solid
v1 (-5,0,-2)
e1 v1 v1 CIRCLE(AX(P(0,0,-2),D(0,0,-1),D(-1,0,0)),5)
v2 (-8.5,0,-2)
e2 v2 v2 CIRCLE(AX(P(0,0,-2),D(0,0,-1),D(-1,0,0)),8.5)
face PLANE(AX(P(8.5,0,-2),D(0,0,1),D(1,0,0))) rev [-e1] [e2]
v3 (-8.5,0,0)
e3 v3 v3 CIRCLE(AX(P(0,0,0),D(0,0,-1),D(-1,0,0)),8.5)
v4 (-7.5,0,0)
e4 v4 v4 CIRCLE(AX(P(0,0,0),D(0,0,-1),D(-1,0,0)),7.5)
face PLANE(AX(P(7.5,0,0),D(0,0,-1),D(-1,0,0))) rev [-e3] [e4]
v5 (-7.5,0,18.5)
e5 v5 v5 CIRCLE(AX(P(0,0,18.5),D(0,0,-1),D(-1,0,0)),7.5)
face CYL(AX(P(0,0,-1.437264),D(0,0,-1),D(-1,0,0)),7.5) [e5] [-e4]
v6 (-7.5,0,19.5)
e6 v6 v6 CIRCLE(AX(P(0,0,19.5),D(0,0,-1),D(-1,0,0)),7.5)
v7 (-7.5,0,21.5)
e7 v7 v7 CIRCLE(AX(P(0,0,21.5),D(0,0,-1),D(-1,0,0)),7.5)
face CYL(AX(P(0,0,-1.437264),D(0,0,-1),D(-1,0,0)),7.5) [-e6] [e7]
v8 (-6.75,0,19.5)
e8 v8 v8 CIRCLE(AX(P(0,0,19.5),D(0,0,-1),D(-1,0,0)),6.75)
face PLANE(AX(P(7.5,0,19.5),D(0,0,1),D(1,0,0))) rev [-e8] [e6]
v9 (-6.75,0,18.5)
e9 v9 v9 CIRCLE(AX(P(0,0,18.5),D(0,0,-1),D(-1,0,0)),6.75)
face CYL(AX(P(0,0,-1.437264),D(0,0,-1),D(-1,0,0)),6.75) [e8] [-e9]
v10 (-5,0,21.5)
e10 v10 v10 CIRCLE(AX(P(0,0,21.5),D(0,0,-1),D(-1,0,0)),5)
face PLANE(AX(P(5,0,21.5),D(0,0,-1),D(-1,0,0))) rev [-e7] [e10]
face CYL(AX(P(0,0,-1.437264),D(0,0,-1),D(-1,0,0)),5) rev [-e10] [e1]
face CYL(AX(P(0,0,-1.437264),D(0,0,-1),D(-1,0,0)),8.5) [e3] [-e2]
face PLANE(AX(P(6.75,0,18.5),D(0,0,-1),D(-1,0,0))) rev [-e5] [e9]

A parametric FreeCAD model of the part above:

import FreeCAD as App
import Part
import Sketcher


def add_polygon(sketch, points):
    """Adds a closed chain of lines whose ends are joined by coincident constraints."""
    first, n = sketch.GeometryCount, len(points)
    for a, b in zip(points, points[1:] + points[:1]):
        sketch.addGeometry(Part.LineSegment(App.Vector(*a, 0), App.Vector(*b, 0)), False)
    for i in range(n):
        sketch.addConstraint(Sketcher.Constraint("Coincident", first + i, 2, first + (i + 1) % n, 1))

doc = App.newDocument("Part")
body = doc.addObject("PartDesign::Body", "Body")

sketch1 = body.newObject("Sketcher::SketchObject", "Sketch")
sketch1.AttachmentSupport = (doc.getObject("XZ_Plane"), [""])
sketch1.MapMode = "FlatFace"
add_polygon(sketch1, [(5, -2), (5, 21.5), (7.5, 21.5), (7.5, 19.5), (6.8, 19.5), (6.8, 18.5), (7.5, 18.5), (7.5, 0), (8.5, 0), (8.5, -2)])
sketch1.addConstraint([
    Sketcher.Constraint("Vertical", 0),
    Sketcher.Constraint("Horizontal", 1),
    Sketcher.Constraint("Vertical", 2),
    Sketcher.Constraint("Horizontal", 3),
    Sketcher.Constraint("Vertical", 4),
    Sketcher.Constraint("Horizontal", 5),
    Sketcher.Constraint("Vertical", 6),
    Sketcher.Constraint("Horizontal", 7),
    Sketcher.Constraint("Vertical", 8),
    Sketcher.Constraint("Horizontal", 9),
    Sketcher.Constraint("PointOnObject", 6, 2, -1),
    Sketcher.Constraint("Vertical", 2, 2, 5, 2),
    Sketcher.Constraint("Equal", 7, 4),
    Sketcher.Constraint("Equal", 2, 8),
    Sketcher.Constraint("DistanceX", 7, 1, 7, 2, 1.0),
    Sketcher.Constraint("DistanceY", 2, 2, 2, 1, 2.0),
    Sketcher.Constraint("DistanceX", 1, 1, 1, 2, 2.5),
    Sketcher.Constraint("DistanceY", 0, 1, 0, 2, 23.5),
    Sketcher.Constraint("DistanceX", -1, 1, 0, 2, 5.0),
    Sketcher.Constraint("DistanceX", 3, 2, 3, 1, 0.75),
])
revolution = body.newObject("PartDesign::Revolution", "Revolution")
revolution.Profile = sketch1
revolution.ReferenceAxis = (sketch1, ["V_Axis"])
revolution.Angle = 360

doc.recompute()
